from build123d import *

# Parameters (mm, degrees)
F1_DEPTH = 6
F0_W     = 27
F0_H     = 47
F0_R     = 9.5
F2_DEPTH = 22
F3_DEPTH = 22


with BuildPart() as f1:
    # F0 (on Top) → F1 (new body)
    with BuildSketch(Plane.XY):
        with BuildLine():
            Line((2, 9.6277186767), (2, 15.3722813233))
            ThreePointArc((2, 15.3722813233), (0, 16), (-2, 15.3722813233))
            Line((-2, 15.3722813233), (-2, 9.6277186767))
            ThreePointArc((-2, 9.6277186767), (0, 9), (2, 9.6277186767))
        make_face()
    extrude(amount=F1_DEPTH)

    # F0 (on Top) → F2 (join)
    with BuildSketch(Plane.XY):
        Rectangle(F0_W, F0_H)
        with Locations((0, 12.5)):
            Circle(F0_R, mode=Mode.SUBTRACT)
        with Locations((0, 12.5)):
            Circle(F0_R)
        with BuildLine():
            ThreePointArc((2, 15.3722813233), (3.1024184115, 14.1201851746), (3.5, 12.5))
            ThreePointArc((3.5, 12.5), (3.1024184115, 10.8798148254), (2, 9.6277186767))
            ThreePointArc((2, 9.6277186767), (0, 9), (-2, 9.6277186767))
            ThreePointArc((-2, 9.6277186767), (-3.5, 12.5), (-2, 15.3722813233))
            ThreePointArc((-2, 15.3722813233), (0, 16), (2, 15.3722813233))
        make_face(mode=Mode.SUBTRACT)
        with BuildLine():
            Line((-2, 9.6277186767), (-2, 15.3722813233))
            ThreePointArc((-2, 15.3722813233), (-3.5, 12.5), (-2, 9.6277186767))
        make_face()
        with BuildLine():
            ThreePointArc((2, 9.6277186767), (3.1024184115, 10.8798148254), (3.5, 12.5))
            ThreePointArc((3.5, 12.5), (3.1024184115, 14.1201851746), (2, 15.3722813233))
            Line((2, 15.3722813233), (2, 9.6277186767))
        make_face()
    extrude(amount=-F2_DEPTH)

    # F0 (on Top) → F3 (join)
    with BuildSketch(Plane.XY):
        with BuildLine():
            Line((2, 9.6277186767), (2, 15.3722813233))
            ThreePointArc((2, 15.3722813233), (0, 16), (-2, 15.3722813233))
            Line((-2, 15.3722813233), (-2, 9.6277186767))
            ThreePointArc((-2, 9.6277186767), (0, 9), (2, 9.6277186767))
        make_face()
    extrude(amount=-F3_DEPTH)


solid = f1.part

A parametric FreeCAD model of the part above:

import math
import FreeCAD as App
import Part
import Sketcher

doc = App.newDocument("Part")
body = doc.addObject("PartDesign::Body", "Body")
body.AllowCompound = True

# Sketch on XY plane
sketch1 = body.newObject("Sketcher::SketchObject", "Sketch")
sketch1.AttachmentSupport = (doc.getObject("XY_Plane"), [""])
sketch1.MapMode = "FlatFace"
sketch1.addGeometry([
    Part.LineSegment(App.Vector(2, 9.627719, 0), App.Vector(2, 15.372281, 0)),
    Part.ArcOfCircle(Part.Circle(App.Vector(0, 12.5, 0), App.Vector(0, 0, 1), 3.5), math.radians(55.150095), math.radians(124.849905)),
    Part.LineSegment(App.Vector(-2, 15.372281, 0), App.Vector(-2, 9.627719, 0)),
    Part.ArcOfCircle(Part.Circle(App.Vector(0, 12.5, 0), App.Vector(0, 0, 1), 3.5), math.radians(-124.849905), math.radians(-55.150095)),
], False)
sketch1.addConstraint([
    Sketcher.Constraint("Coincident", 0, 2, 1, 1),
    Sketcher.Constraint("Coincident", 1, 2, 2, 1),
    Sketcher.Constraint("Coincident", 2, 2, 3, 1),
    Sketcher.Constraint("Coincident", 3, 2, 0, 1),
    Sketcher.Constraint("Vertical", 0),
    Sketcher.Constraint("Vertical", 2),
    Sketcher.Constraint("Coincident", 3, 3, 1, 3),
    Sketcher.Constraint("Equal", 1, 3),
    Sketcher.Constraint("Symmetric", 0, 2, 1, 2, -2),
    Sketcher.Constraint("Radius", 1, 3.5),
    Sketcher.Constraint("DistanceX", -1, 1, 0, 2, 2.0),
    Sketcher.Constraint("DistanceY", -1, 1, 1, 3, 12.5),
])
pad1 = body.newObject("PartDesign::Pad", "Pad")
pad1.Profile = sketch1
pad1.Length = 6

# Sketch on XY plane
sketch2 = body.newObject("Sketcher::SketchObject", "Sketch001")
sketch2.AttachmentSupport = (doc.getObject("XY_Plane"), [""])
sketch2.MapMode = "FlatFace"
sketch2.addGeometry([
    Part.LineSegment(App.Vector(-13.5, 23.5, 0), App.Vector(-13.5, -23.5, 0)),  # 0
    Part.LineSegment(App.Vector(-13.5, -23.5, 0), App.Vector(13.5, -23.5, 0)),  # 1
    Part.LineSegment(App.Vector(13.5, -23.5, 0), App.Vector(13.5, 23.5, 0)),  # 2
    Part.LineSegment(App.Vector(13.5, 23.5, 0), App.Vector(-13.5, 23.5, 0)),  # 3
    Part.ArcOfCircle(Part.Circle(App.Vector(0, 12.5, 0), App.Vector(0, 0, 1), 3.5), math.radians(55.150095), math.radians(124.849905)),  # 4
    Part.LineSegment(App.Vector(2, 15.372281, 0), App.Vector(2, 9.627719, 0)),  # 5
    Part.ArcOfCircle(Part.Circle(App.Vector(0, 12.5, 0), App.Vector(0, 0, 1), 3.5), math.radians(-124.849905), math.radians(-55.150095)),  # 6
    Part.LineSegment(App.Vector(-2, 9.627719, 0), App.Vector(-2, 15.372281, 0)),  # 7
], False)
sketch2.addConstraint([
    Sketcher.Constraint("Coincident", 0, 2, 1, 1),
    Sketcher.Constraint("Coincident", 1, 2, 2, 1),
    Sketcher.Constraint("Coincident", 2, 2, 3, 1),
    Sketcher.Constraint("Coincident", 3, 2, 0, 1),
    Sketcher.Constraint("Coincident", 4, 1, 5, 1),
    Sketcher.Constraint("Coincident", 5, 2, 6, 2),
    Sketcher.Constraint("Coincident", 6, 1, 7, 1),
    Sketcher.Constraint("Coincident", 7, 2, 4, 2),
    Sketcher.Constraint("Vertical", 0),
    Sketcher.Constraint("Horizontal", 1),
    Sketcher.Constraint("Vertical", 2),
    Sketcher.Constraint("Horizontal", 3),
    Sketcher.Constraint("Vertical", 5),
    Sketcher.Constraint("Vertical", 7),
    Sketcher.Constraint("Coincident", 6, 3, 4, 3),
    Sketcher.Constraint("Equal", 4, 6),
    Sketcher.Constraint("Symmetric", 0, 2, 2, 2, -1, 1),
    Sketcher.Constraint("Symmetric", 5, 2, 6, 1, -2),
    Sketcher.Constraint("Radius", 4, 3.5),
    Sketcher.Constraint("DistanceX", 1, 1, 1, 2, 27.0),
    Sketcher.Constraint("DistanceY", 0, 2, 0, 1, 47.0),
    Sketcher.Constraint("DistanceX", -1, 1, 4, 1, 2.0),
    Sketcher.Constraint("DistanceY", 0, 2, 4, 3, 36.0),
])
pad2 = body.newObject("PartDesign::Pad", "Pad001")
pad2.Profile = sketch2
pad2.Length = 22
pad2.Reversed = True

# Sketch on XY plane
sketch3 = body.newObject("Sketcher::SketchObject", "Sketch002")
sketch3.AttachmentSupport = (doc.getObject("XY_Plane"), [""])
sketch3.MapMode = "FlatFace"
sketch3.addGeometry([
    Part.LineSegment(App.Vector(2, 9.627719, 0), App.Vector(2, 15.372281, 0)),
    Part.ArcOfCircle(Part.Circle(App.Vector(0, 12.5, 0), App.Vector(0, 0, 1), 3.5), math.radians(55.150095), math.radians(124.849905)),
    Part.LineSegment(App.Vector(-2, 15.372281, 0), App.Vector(-2, 9.627719, 0)),
    Part.ArcOfCircle(Part.Circle(App.Vector(0, 12.5, 0), App.Vector(0, 0, 1), 3.5), math.radians(-124.849905), math.radians(-55.150095)),
], False)
sketch3.addConstraint([
    Sketcher.Constraint("Coincident", 0, 2, 1, 1),
    Sketcher.Constraint("Coincident", 1, 2, 2, 1),
    Sketcher.Constraint("Coincident", 2, 2, 3, 1),
    Sketcher.Constraint("Coincident", 3, 2, 0, 1),
    Sketcher.Constraint("Vertical", 0),
    Sketcher.Constraint("Vertical", 2),
    Sketcher.Constraint("Coincident", 3, 3, 1, 3),
    Sketcher.Constraint("Equal", 1, 3),
    Sketcher.Constraint("Symmetric", 0, 2, 1, 2, -2),
    Sketcher.Constraint("Radius", 1, 3.5),
    Sketcher.Constraint("DistanceX", -1, 1, 0, 2, 2.0),
    Sketcher.Constraint("DistanceY", -1, 1, 1, 3, 12.5),
])
pad3 = body.newObject("PartDesign::Pad", "Pad002")
pad3.Profile = sketch3
pad3.Length = 22
pad3.Reversed = True

doc.recompute()
